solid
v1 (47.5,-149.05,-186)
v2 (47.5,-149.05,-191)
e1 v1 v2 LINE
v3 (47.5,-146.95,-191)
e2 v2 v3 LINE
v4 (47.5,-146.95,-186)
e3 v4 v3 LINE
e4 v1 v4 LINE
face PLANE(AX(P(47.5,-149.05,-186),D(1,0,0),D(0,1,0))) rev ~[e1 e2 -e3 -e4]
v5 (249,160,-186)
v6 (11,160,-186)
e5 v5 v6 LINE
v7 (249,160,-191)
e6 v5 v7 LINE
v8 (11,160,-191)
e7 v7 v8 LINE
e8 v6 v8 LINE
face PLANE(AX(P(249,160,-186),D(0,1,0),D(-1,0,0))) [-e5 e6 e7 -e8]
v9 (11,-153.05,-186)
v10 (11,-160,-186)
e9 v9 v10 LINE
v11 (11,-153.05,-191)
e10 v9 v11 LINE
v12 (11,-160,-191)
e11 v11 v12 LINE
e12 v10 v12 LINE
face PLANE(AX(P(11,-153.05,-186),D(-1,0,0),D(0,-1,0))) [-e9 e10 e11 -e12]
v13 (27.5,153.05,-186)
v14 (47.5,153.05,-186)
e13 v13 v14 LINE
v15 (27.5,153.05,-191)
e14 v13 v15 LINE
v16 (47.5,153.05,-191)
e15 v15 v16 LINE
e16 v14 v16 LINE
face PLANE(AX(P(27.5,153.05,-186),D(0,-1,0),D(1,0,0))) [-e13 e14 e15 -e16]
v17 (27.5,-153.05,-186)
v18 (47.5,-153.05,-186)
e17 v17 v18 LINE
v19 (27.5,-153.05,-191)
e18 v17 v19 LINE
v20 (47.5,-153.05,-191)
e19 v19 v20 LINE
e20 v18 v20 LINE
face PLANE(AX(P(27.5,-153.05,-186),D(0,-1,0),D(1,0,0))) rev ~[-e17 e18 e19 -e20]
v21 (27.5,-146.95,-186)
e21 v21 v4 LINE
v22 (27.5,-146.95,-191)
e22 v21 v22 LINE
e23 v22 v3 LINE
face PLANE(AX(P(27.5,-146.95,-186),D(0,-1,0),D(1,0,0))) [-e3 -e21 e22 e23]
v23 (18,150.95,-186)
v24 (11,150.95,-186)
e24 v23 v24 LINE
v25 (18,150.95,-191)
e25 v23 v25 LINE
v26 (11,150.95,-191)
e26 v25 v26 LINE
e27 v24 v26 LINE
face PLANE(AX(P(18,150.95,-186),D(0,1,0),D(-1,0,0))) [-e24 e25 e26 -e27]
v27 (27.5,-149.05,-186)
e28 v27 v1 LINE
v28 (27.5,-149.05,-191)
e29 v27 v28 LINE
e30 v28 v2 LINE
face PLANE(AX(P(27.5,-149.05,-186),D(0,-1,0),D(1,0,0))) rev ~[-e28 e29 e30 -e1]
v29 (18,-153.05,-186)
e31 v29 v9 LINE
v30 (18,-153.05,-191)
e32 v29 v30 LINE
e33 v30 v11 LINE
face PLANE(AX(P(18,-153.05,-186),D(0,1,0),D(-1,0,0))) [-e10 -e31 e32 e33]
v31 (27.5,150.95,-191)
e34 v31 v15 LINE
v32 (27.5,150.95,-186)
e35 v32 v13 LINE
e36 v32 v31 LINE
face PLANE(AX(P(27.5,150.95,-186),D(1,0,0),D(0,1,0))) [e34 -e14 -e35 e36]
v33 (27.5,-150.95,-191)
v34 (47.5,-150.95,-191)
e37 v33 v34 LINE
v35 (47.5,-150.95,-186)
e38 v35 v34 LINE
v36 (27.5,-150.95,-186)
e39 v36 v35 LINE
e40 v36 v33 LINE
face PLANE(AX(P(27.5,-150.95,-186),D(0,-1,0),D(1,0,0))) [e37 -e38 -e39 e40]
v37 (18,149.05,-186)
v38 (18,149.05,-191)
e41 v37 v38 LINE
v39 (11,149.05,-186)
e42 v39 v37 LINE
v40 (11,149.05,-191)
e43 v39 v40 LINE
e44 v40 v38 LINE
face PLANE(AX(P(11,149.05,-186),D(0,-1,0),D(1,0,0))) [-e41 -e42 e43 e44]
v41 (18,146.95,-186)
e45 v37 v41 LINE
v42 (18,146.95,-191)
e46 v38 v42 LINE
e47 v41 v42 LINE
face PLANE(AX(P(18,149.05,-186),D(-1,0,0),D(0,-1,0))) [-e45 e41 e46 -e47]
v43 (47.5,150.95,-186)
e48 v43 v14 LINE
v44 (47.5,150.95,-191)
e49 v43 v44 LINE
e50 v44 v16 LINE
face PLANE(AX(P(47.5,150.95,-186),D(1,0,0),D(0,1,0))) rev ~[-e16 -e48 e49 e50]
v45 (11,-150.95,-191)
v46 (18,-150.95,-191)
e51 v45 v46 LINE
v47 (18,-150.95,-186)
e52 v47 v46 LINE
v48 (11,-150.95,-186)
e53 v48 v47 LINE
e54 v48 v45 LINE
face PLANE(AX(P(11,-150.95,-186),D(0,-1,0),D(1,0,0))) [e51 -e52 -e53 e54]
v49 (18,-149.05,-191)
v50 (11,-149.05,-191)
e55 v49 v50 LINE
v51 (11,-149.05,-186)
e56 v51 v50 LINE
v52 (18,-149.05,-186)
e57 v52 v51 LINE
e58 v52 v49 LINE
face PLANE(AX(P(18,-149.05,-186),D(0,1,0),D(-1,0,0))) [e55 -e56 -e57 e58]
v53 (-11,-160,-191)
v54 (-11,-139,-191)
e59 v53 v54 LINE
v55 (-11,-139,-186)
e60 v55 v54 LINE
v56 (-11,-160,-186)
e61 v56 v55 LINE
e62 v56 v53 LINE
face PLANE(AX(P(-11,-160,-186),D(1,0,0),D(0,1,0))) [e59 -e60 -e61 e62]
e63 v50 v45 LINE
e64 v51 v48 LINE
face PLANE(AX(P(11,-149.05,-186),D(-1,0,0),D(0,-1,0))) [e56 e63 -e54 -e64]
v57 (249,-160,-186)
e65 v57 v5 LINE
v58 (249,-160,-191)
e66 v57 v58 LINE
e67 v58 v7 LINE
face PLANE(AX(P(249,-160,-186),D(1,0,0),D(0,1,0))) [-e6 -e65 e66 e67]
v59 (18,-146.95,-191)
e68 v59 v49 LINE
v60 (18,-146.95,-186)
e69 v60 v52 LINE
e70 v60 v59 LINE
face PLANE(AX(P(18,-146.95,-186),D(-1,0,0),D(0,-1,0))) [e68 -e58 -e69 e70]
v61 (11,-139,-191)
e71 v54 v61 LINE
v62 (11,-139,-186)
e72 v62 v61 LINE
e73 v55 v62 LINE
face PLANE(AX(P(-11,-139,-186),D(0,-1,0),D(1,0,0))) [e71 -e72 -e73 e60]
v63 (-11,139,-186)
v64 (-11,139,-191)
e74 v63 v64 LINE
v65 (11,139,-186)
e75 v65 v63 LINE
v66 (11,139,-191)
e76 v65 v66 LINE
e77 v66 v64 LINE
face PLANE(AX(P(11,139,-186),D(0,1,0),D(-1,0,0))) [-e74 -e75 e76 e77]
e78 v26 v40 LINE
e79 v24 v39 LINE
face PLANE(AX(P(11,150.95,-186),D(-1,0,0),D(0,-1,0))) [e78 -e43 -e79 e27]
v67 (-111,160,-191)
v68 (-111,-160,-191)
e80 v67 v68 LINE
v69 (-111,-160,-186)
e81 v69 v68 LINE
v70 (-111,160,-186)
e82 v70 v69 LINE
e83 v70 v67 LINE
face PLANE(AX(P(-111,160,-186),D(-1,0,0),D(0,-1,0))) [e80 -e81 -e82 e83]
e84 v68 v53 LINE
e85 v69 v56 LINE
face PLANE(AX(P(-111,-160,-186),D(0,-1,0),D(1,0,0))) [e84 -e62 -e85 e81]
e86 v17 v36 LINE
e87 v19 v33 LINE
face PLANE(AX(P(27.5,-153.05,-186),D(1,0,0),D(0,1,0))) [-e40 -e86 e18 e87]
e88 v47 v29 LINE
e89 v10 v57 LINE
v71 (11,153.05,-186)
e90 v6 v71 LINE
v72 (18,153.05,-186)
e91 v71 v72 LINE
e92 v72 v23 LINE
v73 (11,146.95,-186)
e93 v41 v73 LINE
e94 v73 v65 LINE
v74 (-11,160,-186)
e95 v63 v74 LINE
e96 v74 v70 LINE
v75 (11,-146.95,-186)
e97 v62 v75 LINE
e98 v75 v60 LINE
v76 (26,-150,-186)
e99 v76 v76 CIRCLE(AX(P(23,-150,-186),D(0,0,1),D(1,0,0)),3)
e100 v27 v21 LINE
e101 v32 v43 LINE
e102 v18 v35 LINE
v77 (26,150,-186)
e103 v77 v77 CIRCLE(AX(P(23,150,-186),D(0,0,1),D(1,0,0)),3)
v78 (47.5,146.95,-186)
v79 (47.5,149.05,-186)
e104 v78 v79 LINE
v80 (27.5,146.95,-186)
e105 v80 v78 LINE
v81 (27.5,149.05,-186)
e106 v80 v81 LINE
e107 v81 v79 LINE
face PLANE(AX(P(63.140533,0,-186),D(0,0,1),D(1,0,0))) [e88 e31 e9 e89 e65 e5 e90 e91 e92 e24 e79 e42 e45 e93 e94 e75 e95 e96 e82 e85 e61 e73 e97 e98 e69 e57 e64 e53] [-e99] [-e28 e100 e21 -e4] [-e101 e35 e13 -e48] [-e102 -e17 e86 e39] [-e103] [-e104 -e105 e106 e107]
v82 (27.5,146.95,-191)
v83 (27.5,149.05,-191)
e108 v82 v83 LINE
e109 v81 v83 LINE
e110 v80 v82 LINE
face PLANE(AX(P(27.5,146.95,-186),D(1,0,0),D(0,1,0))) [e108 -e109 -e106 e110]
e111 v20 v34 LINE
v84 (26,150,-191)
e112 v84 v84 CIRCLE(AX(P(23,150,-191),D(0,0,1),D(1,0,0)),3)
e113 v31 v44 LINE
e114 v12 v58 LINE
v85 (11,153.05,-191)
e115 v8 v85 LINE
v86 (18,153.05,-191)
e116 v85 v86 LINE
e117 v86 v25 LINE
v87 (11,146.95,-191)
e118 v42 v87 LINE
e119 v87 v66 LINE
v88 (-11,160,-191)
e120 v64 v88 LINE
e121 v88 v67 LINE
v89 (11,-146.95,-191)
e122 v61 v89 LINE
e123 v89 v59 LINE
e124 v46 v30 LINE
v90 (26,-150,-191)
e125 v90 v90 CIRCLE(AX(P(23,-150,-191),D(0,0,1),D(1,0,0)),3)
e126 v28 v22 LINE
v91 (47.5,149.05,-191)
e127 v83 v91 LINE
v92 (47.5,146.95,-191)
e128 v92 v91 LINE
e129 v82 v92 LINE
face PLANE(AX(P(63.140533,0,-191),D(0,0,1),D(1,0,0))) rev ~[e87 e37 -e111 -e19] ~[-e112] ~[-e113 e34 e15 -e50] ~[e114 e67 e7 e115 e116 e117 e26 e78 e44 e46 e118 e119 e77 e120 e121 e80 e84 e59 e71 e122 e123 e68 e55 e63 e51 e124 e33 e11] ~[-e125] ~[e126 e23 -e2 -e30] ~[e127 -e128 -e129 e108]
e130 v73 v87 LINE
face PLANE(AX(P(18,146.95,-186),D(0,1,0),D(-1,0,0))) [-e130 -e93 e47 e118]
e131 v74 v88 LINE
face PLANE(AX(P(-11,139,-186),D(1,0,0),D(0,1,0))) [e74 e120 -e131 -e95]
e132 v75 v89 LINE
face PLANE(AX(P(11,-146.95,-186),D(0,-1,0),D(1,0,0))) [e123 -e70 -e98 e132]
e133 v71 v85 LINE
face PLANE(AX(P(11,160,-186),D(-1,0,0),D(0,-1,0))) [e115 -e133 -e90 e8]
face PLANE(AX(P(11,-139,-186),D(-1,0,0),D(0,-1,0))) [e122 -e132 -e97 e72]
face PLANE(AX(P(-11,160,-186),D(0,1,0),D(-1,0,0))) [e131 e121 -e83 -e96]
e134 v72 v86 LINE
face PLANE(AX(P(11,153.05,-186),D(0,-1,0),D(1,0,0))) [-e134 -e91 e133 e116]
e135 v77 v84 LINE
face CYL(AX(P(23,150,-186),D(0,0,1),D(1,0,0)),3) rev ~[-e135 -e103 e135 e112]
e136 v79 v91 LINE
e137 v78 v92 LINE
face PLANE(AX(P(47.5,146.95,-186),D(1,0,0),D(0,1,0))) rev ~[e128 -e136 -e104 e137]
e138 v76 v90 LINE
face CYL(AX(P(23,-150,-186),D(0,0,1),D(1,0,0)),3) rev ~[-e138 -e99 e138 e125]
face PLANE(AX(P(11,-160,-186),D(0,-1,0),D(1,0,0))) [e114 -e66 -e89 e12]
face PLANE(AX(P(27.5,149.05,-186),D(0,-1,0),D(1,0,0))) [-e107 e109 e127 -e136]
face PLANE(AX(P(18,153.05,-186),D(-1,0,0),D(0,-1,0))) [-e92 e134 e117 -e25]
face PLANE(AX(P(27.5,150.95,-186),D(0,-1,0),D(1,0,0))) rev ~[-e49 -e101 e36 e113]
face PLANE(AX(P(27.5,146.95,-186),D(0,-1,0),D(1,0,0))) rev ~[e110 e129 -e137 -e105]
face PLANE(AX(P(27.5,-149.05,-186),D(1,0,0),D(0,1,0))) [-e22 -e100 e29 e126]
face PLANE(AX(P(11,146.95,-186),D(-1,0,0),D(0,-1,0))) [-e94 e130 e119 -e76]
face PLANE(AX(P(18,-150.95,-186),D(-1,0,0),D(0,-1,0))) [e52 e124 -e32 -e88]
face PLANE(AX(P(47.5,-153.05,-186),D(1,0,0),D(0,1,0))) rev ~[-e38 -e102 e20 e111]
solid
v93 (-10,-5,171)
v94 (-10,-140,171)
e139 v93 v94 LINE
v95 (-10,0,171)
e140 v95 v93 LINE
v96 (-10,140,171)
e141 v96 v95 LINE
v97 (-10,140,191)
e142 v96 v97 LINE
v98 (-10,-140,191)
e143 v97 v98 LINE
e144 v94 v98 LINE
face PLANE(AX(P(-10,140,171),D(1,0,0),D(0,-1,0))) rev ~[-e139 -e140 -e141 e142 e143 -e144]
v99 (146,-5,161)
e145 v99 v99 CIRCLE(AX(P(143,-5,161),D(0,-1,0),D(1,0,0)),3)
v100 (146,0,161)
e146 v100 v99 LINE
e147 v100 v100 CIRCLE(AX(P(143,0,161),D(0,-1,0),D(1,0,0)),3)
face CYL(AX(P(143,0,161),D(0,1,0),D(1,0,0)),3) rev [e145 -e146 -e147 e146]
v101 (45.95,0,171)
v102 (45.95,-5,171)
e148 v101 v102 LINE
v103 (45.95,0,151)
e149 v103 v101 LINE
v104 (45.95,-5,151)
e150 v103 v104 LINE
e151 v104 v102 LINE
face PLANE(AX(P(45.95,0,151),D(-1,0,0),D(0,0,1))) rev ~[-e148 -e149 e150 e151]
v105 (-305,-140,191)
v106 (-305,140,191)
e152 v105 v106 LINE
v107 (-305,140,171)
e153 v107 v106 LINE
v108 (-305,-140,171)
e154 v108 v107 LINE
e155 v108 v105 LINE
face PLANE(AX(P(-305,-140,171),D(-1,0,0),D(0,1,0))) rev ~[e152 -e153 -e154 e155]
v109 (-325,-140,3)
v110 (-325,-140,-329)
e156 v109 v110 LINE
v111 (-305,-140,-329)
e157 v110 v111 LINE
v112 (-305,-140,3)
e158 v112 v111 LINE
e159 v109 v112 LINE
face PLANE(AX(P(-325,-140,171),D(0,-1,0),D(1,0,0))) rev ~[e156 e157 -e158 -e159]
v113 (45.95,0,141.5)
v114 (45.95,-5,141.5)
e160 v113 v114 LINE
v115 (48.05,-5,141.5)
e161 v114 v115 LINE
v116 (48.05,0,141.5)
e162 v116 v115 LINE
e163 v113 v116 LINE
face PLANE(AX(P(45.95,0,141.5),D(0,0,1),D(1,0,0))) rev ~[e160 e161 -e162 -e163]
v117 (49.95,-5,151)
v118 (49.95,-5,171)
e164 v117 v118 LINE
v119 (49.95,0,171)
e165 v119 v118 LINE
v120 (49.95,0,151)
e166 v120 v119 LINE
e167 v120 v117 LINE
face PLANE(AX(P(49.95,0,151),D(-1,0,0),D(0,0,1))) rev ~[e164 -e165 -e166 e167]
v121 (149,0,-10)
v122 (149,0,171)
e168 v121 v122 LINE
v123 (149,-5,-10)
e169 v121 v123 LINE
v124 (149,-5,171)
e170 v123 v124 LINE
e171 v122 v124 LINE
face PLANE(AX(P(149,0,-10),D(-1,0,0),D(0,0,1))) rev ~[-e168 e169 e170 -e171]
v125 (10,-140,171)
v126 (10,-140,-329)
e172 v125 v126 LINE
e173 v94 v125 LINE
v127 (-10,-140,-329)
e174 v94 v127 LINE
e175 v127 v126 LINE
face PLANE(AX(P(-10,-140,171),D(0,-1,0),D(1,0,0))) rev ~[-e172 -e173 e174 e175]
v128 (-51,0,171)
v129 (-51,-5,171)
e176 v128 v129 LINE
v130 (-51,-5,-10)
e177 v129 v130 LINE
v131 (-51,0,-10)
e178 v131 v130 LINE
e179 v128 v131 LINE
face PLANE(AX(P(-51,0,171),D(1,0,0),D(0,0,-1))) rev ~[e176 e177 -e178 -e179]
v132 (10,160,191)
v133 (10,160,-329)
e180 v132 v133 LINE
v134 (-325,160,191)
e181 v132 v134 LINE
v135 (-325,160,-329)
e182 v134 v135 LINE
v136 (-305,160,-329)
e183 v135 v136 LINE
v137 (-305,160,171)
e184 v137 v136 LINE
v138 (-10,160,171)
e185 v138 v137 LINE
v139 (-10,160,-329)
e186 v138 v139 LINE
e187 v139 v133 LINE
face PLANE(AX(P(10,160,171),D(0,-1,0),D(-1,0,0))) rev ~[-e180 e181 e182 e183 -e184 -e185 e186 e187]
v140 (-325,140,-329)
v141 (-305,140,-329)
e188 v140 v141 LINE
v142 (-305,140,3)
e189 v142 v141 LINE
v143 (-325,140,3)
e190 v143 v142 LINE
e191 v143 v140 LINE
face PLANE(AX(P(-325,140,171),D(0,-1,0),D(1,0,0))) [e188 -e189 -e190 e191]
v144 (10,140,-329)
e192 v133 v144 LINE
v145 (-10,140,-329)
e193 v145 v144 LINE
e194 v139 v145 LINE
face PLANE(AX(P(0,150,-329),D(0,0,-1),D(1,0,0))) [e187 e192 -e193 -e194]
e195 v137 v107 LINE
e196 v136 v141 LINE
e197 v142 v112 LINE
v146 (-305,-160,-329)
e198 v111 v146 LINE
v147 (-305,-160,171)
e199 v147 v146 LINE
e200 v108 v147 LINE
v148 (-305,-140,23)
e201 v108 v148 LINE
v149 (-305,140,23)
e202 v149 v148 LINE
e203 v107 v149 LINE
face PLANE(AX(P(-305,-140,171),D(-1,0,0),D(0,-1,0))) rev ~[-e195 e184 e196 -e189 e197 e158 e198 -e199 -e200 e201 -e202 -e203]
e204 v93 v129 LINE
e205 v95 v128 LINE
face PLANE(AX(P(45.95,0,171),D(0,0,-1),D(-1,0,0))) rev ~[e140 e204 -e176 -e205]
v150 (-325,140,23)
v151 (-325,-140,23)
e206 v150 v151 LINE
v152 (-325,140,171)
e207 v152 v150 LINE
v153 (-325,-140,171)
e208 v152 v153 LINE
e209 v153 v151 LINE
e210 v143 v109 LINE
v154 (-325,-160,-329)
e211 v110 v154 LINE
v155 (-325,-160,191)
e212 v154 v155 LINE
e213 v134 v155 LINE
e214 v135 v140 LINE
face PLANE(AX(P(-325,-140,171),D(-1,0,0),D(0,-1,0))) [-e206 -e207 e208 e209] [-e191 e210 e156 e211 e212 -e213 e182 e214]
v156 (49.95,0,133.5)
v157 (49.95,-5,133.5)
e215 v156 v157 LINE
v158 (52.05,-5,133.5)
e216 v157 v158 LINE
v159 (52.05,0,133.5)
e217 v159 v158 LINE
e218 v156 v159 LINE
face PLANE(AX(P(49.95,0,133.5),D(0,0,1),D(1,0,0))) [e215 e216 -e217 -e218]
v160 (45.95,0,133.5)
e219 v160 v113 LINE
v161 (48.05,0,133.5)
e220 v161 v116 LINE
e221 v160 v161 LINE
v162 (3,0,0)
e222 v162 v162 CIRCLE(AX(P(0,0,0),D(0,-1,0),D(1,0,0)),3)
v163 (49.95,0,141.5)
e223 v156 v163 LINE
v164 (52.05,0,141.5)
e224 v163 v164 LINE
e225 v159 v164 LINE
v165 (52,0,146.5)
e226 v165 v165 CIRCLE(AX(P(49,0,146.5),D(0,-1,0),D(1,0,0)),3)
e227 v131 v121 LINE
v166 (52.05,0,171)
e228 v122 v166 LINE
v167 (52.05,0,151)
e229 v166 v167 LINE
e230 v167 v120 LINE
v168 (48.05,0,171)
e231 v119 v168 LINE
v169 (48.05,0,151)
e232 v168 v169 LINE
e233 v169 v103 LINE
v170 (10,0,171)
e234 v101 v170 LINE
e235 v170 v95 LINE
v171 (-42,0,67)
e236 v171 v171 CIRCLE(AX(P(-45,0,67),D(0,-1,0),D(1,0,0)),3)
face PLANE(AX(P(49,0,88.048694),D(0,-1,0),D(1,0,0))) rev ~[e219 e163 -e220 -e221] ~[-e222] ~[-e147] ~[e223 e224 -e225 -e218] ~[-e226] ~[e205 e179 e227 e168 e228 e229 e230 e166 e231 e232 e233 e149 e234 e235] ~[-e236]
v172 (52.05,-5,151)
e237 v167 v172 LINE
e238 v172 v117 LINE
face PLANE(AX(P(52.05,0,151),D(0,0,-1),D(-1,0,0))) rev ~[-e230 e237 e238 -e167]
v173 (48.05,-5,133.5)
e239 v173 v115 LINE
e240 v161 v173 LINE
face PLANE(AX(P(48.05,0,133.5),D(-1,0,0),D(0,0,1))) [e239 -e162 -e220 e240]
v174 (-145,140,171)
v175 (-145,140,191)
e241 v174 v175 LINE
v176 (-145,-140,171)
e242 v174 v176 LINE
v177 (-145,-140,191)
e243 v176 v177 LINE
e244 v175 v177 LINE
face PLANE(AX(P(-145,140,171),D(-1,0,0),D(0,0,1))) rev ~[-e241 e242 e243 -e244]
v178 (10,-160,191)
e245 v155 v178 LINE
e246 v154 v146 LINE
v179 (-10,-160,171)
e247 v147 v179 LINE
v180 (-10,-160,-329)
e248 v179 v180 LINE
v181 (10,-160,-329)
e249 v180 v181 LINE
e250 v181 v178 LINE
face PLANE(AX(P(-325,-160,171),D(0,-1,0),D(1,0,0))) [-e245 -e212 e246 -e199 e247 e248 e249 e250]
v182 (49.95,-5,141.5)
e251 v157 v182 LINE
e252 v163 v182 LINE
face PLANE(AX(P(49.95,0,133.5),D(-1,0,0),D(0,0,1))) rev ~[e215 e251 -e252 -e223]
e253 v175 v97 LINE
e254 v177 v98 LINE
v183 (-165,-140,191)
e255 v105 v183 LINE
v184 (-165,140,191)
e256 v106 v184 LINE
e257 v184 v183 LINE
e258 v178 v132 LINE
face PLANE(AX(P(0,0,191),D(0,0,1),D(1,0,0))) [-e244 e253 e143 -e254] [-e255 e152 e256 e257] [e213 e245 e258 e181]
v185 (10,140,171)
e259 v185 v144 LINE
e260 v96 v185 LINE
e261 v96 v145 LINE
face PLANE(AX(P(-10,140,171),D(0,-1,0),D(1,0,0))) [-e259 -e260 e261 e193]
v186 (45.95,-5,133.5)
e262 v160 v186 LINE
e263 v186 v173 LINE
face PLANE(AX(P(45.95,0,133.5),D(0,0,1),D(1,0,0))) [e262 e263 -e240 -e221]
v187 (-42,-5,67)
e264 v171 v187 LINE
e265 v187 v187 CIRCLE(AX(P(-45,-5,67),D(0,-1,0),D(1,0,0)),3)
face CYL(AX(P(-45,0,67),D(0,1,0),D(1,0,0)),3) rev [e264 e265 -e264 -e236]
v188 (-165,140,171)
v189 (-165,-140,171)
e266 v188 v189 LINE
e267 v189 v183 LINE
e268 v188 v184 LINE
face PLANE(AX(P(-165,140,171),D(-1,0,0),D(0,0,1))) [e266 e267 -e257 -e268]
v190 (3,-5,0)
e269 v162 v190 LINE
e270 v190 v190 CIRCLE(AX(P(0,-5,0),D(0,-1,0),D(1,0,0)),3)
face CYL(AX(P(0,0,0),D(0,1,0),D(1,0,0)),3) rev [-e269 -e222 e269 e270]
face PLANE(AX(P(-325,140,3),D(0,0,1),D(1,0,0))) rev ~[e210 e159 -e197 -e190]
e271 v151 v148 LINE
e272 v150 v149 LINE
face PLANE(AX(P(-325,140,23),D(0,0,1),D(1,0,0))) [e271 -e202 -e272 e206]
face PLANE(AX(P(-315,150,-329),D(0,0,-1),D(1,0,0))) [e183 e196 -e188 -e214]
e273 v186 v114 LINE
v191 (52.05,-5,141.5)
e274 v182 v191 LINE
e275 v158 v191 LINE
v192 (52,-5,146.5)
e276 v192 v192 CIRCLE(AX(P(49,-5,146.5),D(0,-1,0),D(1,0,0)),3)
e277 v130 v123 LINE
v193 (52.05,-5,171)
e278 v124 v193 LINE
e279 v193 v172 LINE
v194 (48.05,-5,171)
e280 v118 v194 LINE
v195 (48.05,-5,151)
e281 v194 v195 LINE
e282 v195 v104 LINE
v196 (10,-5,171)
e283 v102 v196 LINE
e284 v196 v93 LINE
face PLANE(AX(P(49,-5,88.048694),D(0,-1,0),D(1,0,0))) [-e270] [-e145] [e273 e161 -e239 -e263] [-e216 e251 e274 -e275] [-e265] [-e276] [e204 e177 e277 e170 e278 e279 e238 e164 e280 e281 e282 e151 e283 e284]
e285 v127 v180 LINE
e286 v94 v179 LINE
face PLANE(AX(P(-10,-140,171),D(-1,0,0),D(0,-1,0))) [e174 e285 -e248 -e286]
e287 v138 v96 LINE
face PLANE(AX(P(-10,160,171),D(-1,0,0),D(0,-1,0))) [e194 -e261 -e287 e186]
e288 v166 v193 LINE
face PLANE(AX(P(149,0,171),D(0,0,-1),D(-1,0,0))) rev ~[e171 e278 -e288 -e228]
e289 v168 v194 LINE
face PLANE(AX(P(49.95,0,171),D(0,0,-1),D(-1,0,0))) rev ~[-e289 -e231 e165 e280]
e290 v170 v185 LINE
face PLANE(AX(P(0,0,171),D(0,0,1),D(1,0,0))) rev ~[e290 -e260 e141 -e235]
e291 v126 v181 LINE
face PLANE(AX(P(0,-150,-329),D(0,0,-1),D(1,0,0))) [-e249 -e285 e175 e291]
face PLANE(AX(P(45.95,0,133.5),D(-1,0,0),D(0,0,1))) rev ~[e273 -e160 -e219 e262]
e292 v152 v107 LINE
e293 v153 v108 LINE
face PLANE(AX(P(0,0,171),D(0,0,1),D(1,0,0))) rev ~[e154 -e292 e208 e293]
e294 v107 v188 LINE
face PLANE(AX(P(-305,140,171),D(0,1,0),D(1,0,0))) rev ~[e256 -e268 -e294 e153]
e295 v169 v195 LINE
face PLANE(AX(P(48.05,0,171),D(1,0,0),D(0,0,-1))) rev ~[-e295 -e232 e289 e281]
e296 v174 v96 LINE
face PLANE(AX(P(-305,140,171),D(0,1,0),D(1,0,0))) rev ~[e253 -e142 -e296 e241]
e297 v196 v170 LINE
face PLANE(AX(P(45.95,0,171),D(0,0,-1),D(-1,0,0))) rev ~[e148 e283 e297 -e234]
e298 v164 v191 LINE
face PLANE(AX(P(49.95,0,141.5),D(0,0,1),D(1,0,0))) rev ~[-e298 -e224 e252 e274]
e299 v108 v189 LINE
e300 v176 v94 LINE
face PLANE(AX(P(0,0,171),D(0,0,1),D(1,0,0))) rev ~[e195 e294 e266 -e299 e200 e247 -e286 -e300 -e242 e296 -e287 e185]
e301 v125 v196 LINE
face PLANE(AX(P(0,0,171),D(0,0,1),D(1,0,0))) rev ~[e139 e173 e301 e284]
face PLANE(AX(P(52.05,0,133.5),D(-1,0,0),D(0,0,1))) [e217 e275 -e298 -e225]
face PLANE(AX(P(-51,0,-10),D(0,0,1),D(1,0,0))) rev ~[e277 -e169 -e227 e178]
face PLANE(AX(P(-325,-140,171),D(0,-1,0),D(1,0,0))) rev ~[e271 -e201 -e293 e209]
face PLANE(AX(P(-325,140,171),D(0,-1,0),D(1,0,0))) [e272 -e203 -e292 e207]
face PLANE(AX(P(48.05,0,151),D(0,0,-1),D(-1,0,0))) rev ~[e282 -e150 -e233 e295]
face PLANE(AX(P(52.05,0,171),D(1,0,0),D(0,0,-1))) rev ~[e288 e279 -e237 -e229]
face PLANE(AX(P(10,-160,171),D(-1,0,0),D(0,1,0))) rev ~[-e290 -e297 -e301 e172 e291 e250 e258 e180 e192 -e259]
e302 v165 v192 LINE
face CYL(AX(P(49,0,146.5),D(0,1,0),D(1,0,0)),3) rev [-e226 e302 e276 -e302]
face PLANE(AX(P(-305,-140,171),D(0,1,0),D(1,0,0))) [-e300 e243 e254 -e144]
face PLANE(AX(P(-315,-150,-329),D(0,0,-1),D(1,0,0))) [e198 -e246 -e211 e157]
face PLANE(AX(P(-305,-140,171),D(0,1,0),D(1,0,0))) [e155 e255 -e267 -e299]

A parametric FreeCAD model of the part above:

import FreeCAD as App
import Part
import Sketcher
from FreeCAD import Vector

doc = App.newDocument("Part")
body = doc.addObject("PartDesign::Body", "Body")

# Sketch on XZ plane
sketch1 = doc.addObject("Sketcher::SketchObject", "Sketch")
body.addObject(sketch1)
sketch1.AttachmentSupport = (doc.XZ_Plane, [""])
sketch1.MapMode = "FlatFace"
sketch1.addGeometry([
    Part.LineSegment(Vector(-51, 171, 0), Vector(-51, -10, 0)),  # 0
    Part.LineSegment(Vector(-51, -10, 0), Vector(149, -10, 0)),  # 1
    Part.LineSegment(Vector(149, -10, 0), Vector(149, 171, 0)),  # 2
    Part.LineSegment(Vector(149, 171, 0), Vector(52, 171, 0)),  # 3
    Part.LineSegment(Vector(52, 171, 0), Vector(52, 151, 0)),  # 4
    Part.LineSegment(Vector(52, 151, 0), Vector(50, 151, 0)),  # 5
    Part.LineSegment(Vector(50, 151, 0), Vector(50, 171, 0)),  # 6
    Part.LineSegment(Vector(50, 171, 0), Vector(48, 171, 0)),  # 7
    Part.LineSegment(Vector(48, 171, 0), Vector(48, 151, 0)),  # 8
    Part.LineSegment(Vector(48, 151, 0), Vector(46, 151, 0)),  # 9
    Part.LineSegment(Vector(46, 151, 0), Vector(46, 171, 0)),  # 10
    Part.LineSegment(Vector(46, 171, 0), Vector(-51, 171, 0)),  # 11
    Part.Circle(Vector(0, 0, 0), Vector(0, 0, 1), 3),  # 12
    Part.Circle(Vector(-45, 67, 0), Vector(0, 0, 1), 3),  # 13
    Part.LineSegment(Vector(48, 133.5, 0), Vector(46, 133.5, 0)),  # 14
    Part.LineSegment(Vector(46, 133.5, 0), Vector(46, 141.5, 0)),  # 15
    Part.LineSegment(Vector(46, 141.5, 0), Vector(48, 141.5, 0)),  # 16
    Part.LineSegment(Vector(48, 141.5, 0), Vector(48, 133.5, 0)),  # 17
    Part.LineSegment(Vector(52, 133.5, 0), Vector(50, 133.5, 0)),  # 18
    Part.LineSegment(Vector(50, 133.5, 0), Vector(50, 141.5, 0)),  # 19
    Part.LineSegment(Vector(50, 141.5, 0), Vector(52, 141.5, 0)),  # 20
    Part.LineSegment(Vector(52, 141.5, 0), Vector(52, 133.5, 0)),  # 21
    Part.Circle(Vector(49, 146.5, 0), Vector(0, 0, 1), 3),  # 22
    Part.Circle(Vector(143, 161, 0), Vector(0, 0, 1), 3),  # 23
], False)
sketch1.addConstraint([
    Sketcher.Constraint("Coincident", 0, 2, 1, 1),
    Sketcher.Constraint("Coincident", 1, 2, 2, 1),
    Sketcher.Constraint("Coincident", 2, 2, 3, 1),
    Sketcher.Constraint("Coincident", 3, 2, 4, 1),
    Sketcher.Constraint("Coincident", 4, 2, 5, 1),
    Sketcher.Constraint("Coincident", 5, 2, 6, 1),
    Sketcher.Constraint("Coincident", 6, 2, 7, 1),
    Sketcher.Constraint("Coincident", 7, 2, 8, 1),
    Sketcher.Constraint("Coincident", 8, 2, 9, 1),
    Sketcher.Constraint("Coincident", 9, 2, 10, 1),
    Sketcher.Constraint("Coincident", 10, 2, 11, 1),
    Sketcher.Constraint("Coincident", 11, 2, 0, 1),
    Sketcher.Constraint("Coincident", 14, 2, 15, 1),
    Sketcher.Constraint("Coincident", 15, 2, 16, 1),
    Sketcher.Constraint("Coincident", 16, 2, 17, 1),
    Sketcher.Constraint("Coincident", 17, 2, 14, 1),
    Sketcher.Constraint("Coincident", 18, 2, 19, 1),
    Sketcher.Constraint("Coincident", 19, 2, 20, 1),
    Sketcher.Constraint("Coincident", 20, 2, 21, 1),
    Sketcher.Constraint("Coincident", 21, 2, 18, 1),
    Sketcher.Constraint("Vertical", 0),
    Sketcher.Constraint("Horizontal", 1),
    Sketcher.Constraint("Vertical", 2),
    Sketcher.Constraint("Horizontal", 3),
    Sketcher.Constraint("Vertical", 4),
    Sketcher.Constraint("Horizontal", 5),
    Sketcher.Constraint("Vertical", 6),
    Sketcher.Constraint("Horizontal", 7),
    Sketcher.Constraint("Vertical", 8),
    Sketcher.Constraint("Horizontal", 9),
    Sketcher.Constraint("Vertical", 10),
    Sketcher.Constraint("Horizontal", 11),
    Sketcher.Constraint("Horizontal", 14),
    Sketcher.Constraint("Vertical", 15),
    Sketcher.Constraint("Horizontal", 16),
    Sketcher.Constraint("Vertical", 17),
    Sketcher.Constraint("Horizontal", 18),
    Sketcher.Constraint("Vertical", 19),
    Sketcher.Constraint("Horizontal", 20),
    Sketcher.Constraint("Vertical", 21),
    Sketcher.Constraint("Coincident", 12, 3, -1, 1),
    Sketcher.Constraint("Equal", 12, 13),
    Sketcher.Constraint("Equal", 13, 22),
    Sketcher.Constraint("Equal", 22, 23),
    Sketcher.Constraint("Horizontal", 3, 2, 6, 2),
    Sketcher.Constraint("Horizontal", 5, 2, 8, 2),
    Sketcher.Constraint("Horizontal", 7, 2, 10, 2),
    Sketcher.Constraint("Horizontal", 17, 2, 18, 2),
    Sketcher.Constraint("Horizontal", 16, 2, 19, 2),
    Sketcher.Constraint("Vertical", 10, 2, 14, 2),
    Sketcher.Constraint("Vertical", 8, 2, 16, 2),
    Sketcher.Constraint("Vertical", 6, 2, 18, 2),
    Sketcher.Constraint("Vertical", 4, 2, 20, 2),
    Sketcher.Constraint("Equal", 5, 9),
    Sketcher.Constraint("Equal", 3, 11),
    Sketcher.Constraint("Diameter", 12, 6.0),
    Sketcher.Constraint("DistanceX", 1, 1, 1, 2, 200.0),
    Sketcher.Constraint("DistanceY", 0, 2, 0, 1, 181.0),
    Sketcher.Constraint("DistanceY", 4, 2, 4, 1, 20.0),
    Sketcher.Constraint("DistanceY", 15, 1, 15, 2, 8.0),
    Sketcher.Constraint("DistanceX", 5, 2, 5, 1, 2.1),
    Sketcher.Constraint("DistanceX", 7, 2, 7, 1, 1.9),
    Sketcher.Constraint("DistanceX", 13, 3, -1, 1, 45.0),
    Sketcher.Constraint("DistanceY", -1, 1, 13, 3, 67.0),
    Sketcher.Constraint("DistanceX", -1, 1, 22, 3, 49.0),
    Sketcher.Constraint("DistanceX", -1, 1, 23, 3, 143.0),
    Sketcher.Constraint("DistanceY", -1, 1, 23, 3, 161.0),
    Sketcher.Constraint("DistanceX", 0, 2, -1, 1, 51.0),
    Sketcher.Constraint("DistanceY", 0, 2, -1, 1, 10.0),
    Sketcher.Constraint("DistanceY", 14, 2, 22, 3, 13.0),
    Sketcher.Constraint("DistanceY", -1, 1, 22, 3, 146.5),
])
pad1 = doc.addObject("PartDesign::Pad", "Pad")
body.addObject(pad1)
pad1.Profile = sketch1
pad1.Length = 5

# Sketch on XY plane
sketch2 = doc.addObject("Sketcher::SketchObject", "Sketch001")
body.addObject(sketch2)
sketch2.AttachmentSupport = (doc.XY_Plane, [""])
sketch2.MapMode = "FlatFace"
sketch2.AttachmentOffset = App.Placement(Vector(0, 0, 171), App.Rotation())
sketch2.addGeometry([
    Part.LineSegment(Vector(10, -160, 0), Vector(10, 160, 0)),  # 0
    Part.LineSegment(Vector(10, 160, 0), Vector(-325, 160, 0)),  # 1
    Part.LineSegment(Vector(-325, 160, 0), Vector(-325, -160, 0)),  # 2
    Part.LineSegment(Vector(-325, -160, 0), Vector(10, -160, 0)),  # 3
    Part.LineSegment(Vector(-10, 140, 0), Vector(-10, -140, 0)),  # 4
    Part.LineSegment(Vector(-10, -140, 0), Vector(-305, -140, 0)),  # 5
    Part.LineSegment(Vector(-305, -140, 0), Vector(-305, 140, 0)),  # 6
    Part.LineSegment(Vector(-305, 140, 0), Vector(-10, 140, 0)),  # 7
], False)
sketch2.addConstraint([
    Sketcher.Constraint("Coincident", 0, 2, 1, 1),
    Sketcher.Constraint("Coincident", 1, 2, 2, 1),
    Sketcher.Constraint("Coincident", 2, 2, 3, 1),
    Sketcher.Constraint("Coincident", 3, 2, 0, 1),
    Sketcher.Constraint("Coincident", 4, 2, 5, 1),
    Sketcher.Constraint("Coincident", 5, 2, 6, 1),
    Sketcher.Constraint("Coincident", 6, 2, 7, 1),
    Sketcher.Constraint("Coincident", 7, 2, 4, 1),
    Sketcher.Constraint("Vertical", 0),
    Sketcher.Constraint("Horizontal", 1),
    Sketcher.Constraint("Vertical", 2),
    Sketcher.Constraint("Horizontal", 3),
    Sketcher.Constraint("Vertical", 4),
    Sketcher.Constraint("Horizontal", 5),
    Sketcher.Constraint("Vertical", 6),
    Sketcher.Constraint("Horizontal", 7),
    Sketcher.Constraint("DistanceX", 1, 2, 1, 1, 335.0),
    Sketcher.Constraint("DistanceX", 5, 2, 5, 1, 295.0),
    Sketcher.Constraint("DistanceY", 0, 1, 0, 2, 320.0),
    Sketcher.Constraint("DistanceY", 4, 2, 4, 1, 280.0),
    Sketcher.Constraint("DistanceX", -1, 1, 0, 2, 10.0),
    Sketcher.Constraint("DistanceY", -1, 1, 0, 2, 160.0),
    Sketcher.Constraint("DistanceX", 4, 2, -1, 1, 10.0),
    Sketcher.Constraint("DistanceY", 4, 2, -1, 1, 140.0),
])
pad2 = doc.addObject("PartDesign::Pad", "Pad001")
body.addObject(pad2)
pad2.Profile = sketch2
pad2.Length = 20

# Sketch on XY plane
sketch3 = doc.addObject("Sketcher::SketchObject", "Sketch002")
body.addObject(sketch3)
sketch3.AttachmentSupport = (doc.XY_Plane, [""])
sketch3.MapMode = "FlatFace"
sketch3.AttachmentOffset = App.Placement(Vector(0, 0, 171), App.Rotation())
sketch3.addGeometry([
    Part.LineSegment(Vector(-325, -160, 0), Vector(-325, -140, 0)),  # 0
    Part.LineSegment(Vector(-325, -140, 0), Vector(-305, -140, 0)),  # 1
    Part.LineSegment(Vector(-305, -140, 0), Vector(-305, -160, 0)),  # 2
    Part.LineSegment(Vector(-305, -160, 0), Vector(-325, -160, 0)),  # 3
    Part.LineSegment(Vector(-325, 140, 0), Vector(-325, 160, 0)),  # 4
    Part.LineSegment(Vector(-325, 160, 0), Vector(-305, 160, 0)),  # 5
    Part.LineSegment(Vector(-305, 160, 0), Vector(-305, 140, 0)),  # 6
    Part.LineSegment(Vector(-305, 140, 0), Vector(-325, 140, 0)),  # 7
    Part.LineSegment(Vector(-10, 140, 0), Vector(-10, 160, 0)),  # 8
    Part.LineSegment(Vector(-10, 160, 0), Vector(10, 160, 0)),  # 9
    Part.LineSegment(Vector(10, 160, 0), Vector(10, 140, 0)),  # 10
    Part.LineSegment(Vector(10, 140, 0), Vector(-10, 140, 0)),  # 11
    Part.LineSegment(Vector(-10, -160, 0), Vector(-10, -140, 0)),  # 12
    Part.LineSegment(Vector(-10, -140, 0), Vector(10, -140, 0)),  # 13
    Part.LineSegment(Vector(10, -140, 0), Vector(10, -160, 0)),  # 14
    Part.LineSegment(Vector(10, -160, 0), Vector(-10, -160, 0)),  # 15
], False)
sketch3.addConstraint([
    Sketcher.Constraint("Coincident", 0, 2, 1, 1),
    Sketcher.Constraint("Coincident", 1, 2, 2, 1),
    Sketcher.Constraint("Coincident", 2, 2, 3, 1),
    Sketcher.Constraint("Coincident", 3, 2, 0, 1),
    Sketcher.Constraint("Coincident", 4, 2, 5, 1),
    Sketcher.Constraint("Coincident", 5, 2, 6, 1),
    Sketcher.Constraint("Coincident", 6, 2, 7, 1),
    Sketcher.Constraint("Coincident", 7, 2, 4, 1),
    Sketcher.Constraint("Coincident", 8, 2, 9, 1),
    Sketcher.Constraint("Coincident", 9, 2, 10, 1),
    Sketcher.Constraint("Coincident", 10, 2, 11, 1),
    Sketcher.Constraint("Coincident", 11, 2, 8, 1),
    Sketcher.Constraint("Coincident", 12, 2, 13, 1),
    Sketcher.Constraint("Coincident", 13, 2, 14, 1),
    Sketcher.Constraint("Coincident", 14, 2, 15, 1),
    Sketcher.Constraint("Coincident", 15, 2, 12, 1),
    Sketcher.Constraint("Vertical", 0),
    Sketcher.Constraint("Horizontal", 1),
    Sketcher.Constraint("Vertical", 2),
    Sketcher.Constraint("Horizontal", 3),
    Sketcher.Constraint("Vertical", 4),
    Sketcher.Constraint("Horizontal", 5),
    Sketcher.Constraint("Vertical", 6),
    Sketcher.Constraint("Horizontal", 7),
    Sketcher.Constraint("Vertical", 8),
    Sketcher.Constraint("Horizontal", 9),
    Sketcher.Constraint("Vertical", 10),
    Sketcher.Constraint("Horizontal", 11),
    Sketcher.Constraint("Vertical", 12),
    Sketcher.Constraint("Horizontal", 13),
    Sketcher.Constraint("Vertical", 14),
    Sketcher.Constraint("Horizontal", 15),
    Sketcher.Constraint("Symmetric", 10, 2, 12, 2, -1, 1),
    Sketcher.Constraint("Symmetric", 8, 2, 14, 2, -1, 1),
    Sketcher.Constraint("Symmetric", 3, 2, 4, 2, -1),
    Sketcher.Constraint("Symmetric", 1, 2, 6, 2, -1),
    Sketcher.Constraint("Horizontal", 5, 2, 8, 2),
    Sketcher.Constraint("Horizontal", 7, 2, 10, 2),
    Sketcher.Constraint("Vertical", 11, 2, 12, 2),
    Sketcher.Constraint("Equal", 7, 9),
    Sketcher.Constraint("Equal", 15, 0),
    Sketcher.Constraint("DistanceX", 1, 1, 1, 2, 20.0),
    Sketcher.Constraint("DistanceX", 0, 2, -1, 1, 325.0),
    Sketcher.Constraint("DistanceY", 0, 2, -1, 1, 140.0),
])
pad3 = doc.addObject("PartDesign::Pad", "Pad002")
body.addObject(pad3)
pad3.Profile = sketch3
pad3.Length = 500
pad3.Reversed = True

# Sketch on XZ plane
sketch4 = doc.addObject("Sketcher::SketchObject", "Sketch003")
body.addObject(sketch4)
sketch4.AttachmentSupport = (doc.XZ_Plane, [""])
sketch4.MapMode = "FlatFace"
sketch4.AttachmentOffset = App.Placement(Vector(0, 0, -140), App.Rotation())
sketch4.addGeometry([
    Part.LineSegment(Vector(-325, 23, 0), Vector(-325, 3, 0)),
    Part.LineSegment(Vector(-325, 3, 0), Vector(-305, 3, 0)),
    Part.LineSegment(Vector(-305, 3, 0), Vector(-305, 23, 0)),
    Part.LineSegment(Vector(-305, 23, 0), Vector(-325, 23, 0)),
], False)
sketch4.addConstraint([
    Sketcher.Constraint("Coincident", 0, 2, 1, 1),
    Sketcher.Constraint("Coincident", 1, 2, 2, 1),
    Sketcher.Constraint("Coincident", 2, 2, 3, 1),
    Sketcher.Constraint("Coincident", 3, 2, 0, 1),
    Sketcher.Constraint("Vertical", 0),
    Sketcher.Constraint("Horizontal", 1),
    Sketcher.Constraint("Vertical", 2),
    Sketcher.Constraint("Horizontal", 3),
    Sketcher.Constraint("Equal", 3, 0),
    Sketcher.Constraint("DistanceX", 1, 1, 1, 2, 20.0),
    Sketcher.Constraint("DistanceX", 0, 2, -1, 1, 325.0),
    Sketcher.Constraint("DistanceY", -1, 1, 0, 2, 3.0),
])
pad4 = doc.addObject("PartDesign::Pad", "Pad003")
body.addObject(pad4)
pad4.Profile = sketch4
pad4.Length = 280

# Sketch on XZ plane
sketch5 = doc.addObject("Sketcher::SketchObject", "Sketch004")
body.addObject(sketch5)
sketch5.AttachmentSupport = (doc.XZ_Plane, [""])
sketch5.MapMode = "FlatFace"
sketch5.AttachmentOffset = App.Placement(Vector(0, 0, -140), App.Rotation())
sketch5.addGeometry([
    Part.LineSegment(Vector(-165, 191, 0), Vector(-165, 171, 0)),
    Part.LineSegment(Vector(-165, 171, 0), Vector(-145, 171, 0)),
    Part.LineSegment(Vector(-145, 171, 0), Vector(-145, 191, 0)),
    Part.LineSegment(Vector(-145, 191, 0), Vector(-165, 191, 0)),
], False)
sketch5.addConstraint([
    Sketcher.Constraint("Coincident", 0, 2, 1, 1),
    Sketcher.Constraint("Coincident", 1, 2, 2, 1),
    Sketcher.Constraint("Coincident", 2, 2, 3, 1),
    Sketcher.Constraint("Coincident", 3, 2, 0, 1),
    Sketcher.Constraint("Vertical", 0),
    Sketcher.Constraint("Horizontal", 1),
    Sketcher.Constraint("Vertical", 2),
    Sketcher.Constraint("Horizontal", 3),
    Sketcher.Constraint("Equal", 3, 0),
    Sketcher.Constraint("DistanceX", 1, 1, 1, 2, 20.0),
    Sketcher.Constraint("DistanceX", 0, 2, -1, 1, 165.0),
    Sketcher.Constraint("DistanceY", -1, 1, 0, 2, 171.0),
])
pad5 = doc.addObject("PartDesign::Pad", "Pad004")
body.addObject(pad5)
pad5.Profile = sketch5
pad5.Length = 280
body2 = doc.addObject("PartDesign::Body", "Body001")

# Sketch on XY plane
sketch6 = doc.addObject("Sketcher::SketchObject", "Sketch005")
body2.addObject(sketch6)
sketch6.AttachmentSupport = (doc.getObject("XY_Plane001"), [""])
sketch6.MapMode = "FlatFace"
sketch6.AttachmentOffset = App.Placement(Vector(0, 0, -186), App.Rotation())
sketch6.addGeometry([
    Part.LineSegment(Vector(-11, -139, 0), Vector(11, -139, 0)),  # 0
    Part.LineSegment(Vector(11, -139, 0), Vector(11, -146.9, 0)),  # 1
    Part.LineSegment(Vector(11, -146.9, 0), Vector(18, -146.9, 0)),  # 2
    Part.LineSegment(Vector(18, -146.9, 0), Vector(18, -149.1, 0)),  # 3
    Part.LineSegment(Vector(18, -149.1, 0), Vector(11, -149.1, 0)),  # 4
    Part.LineSegment(Vector(11, -149.1, 0), Vector(11, -150.9, 0)),  # 5
    Part.LineSegment(Vector(11, -150.9, 0), Vector(18, -150.9, 0)),  # 6
    Part.LineSegment(Vector(18, -150.9, 0), Vector(18, -153.1, 0)),  # 7
    Part.LineSegment(Vector(18, -153.1, 0), Vector(11, -153.1, 0)),  # 8
    Part.LineSegment(Vector(11, -153.1, 0), Vector(11, -160, 0)),  # 9
    Part.LineSegment(Vector(11, -160, 0), Vector(249, -160, 0)),  # 10
    Part.LineSegment(Vector(249, -160, 0), Vector(249, 160, 0)),  # 11
    Part.LineSegment(Vector(249, 160, 0), Vector(11, 160, 0)),  # 12
    Part.LineSegment(Vector(11, 160, 0), Vector(11, 153.1, 0)),  # 13
    Part.LineSegment(Vector(11, 153.1, 0), Vector(18, 153.1, 0)),  # 14
    Part.LineSegment(Vector(18, 153.1, 0), Vector(18, 150.9, 0)),  # 15
    Part.LineSegment(Vector(18, 150.9, 0), Vector(11, 150.9, 0)),  # 16
    Part.LineSegment(Vector(11, 150.9, 0), Vector(11, 149.1, 0)),  # 17
    Part.LineSegment(Vector(11, 149.1, 0), Vector(18, 149.1, 0)),  # 18
    Part.LineSegment(Vector(18, 149.1, 0), Vector(18, 146.9, 0)),  # 19
    Part.LineSegment(Vector(18, 146.9, 0), Vector(11, 146.9, 0)),  # 20
    Part.LineSegment(Vector(11, 146.9, 0), Vector(11, 139, 0)),  # 21
    Part.LineSegment(Vector(11, 139, 0), Vector(-11, 139, 0)),  # 22
    Part.LineSegment(Vector(-11, 139, 0), Vector(-11, 160, 0)),  # 23
    Part.LineSegment(Vector(-11, 160, 0), Vector(-111, 160, 0)),  # 24
    Part.LineSegment(Vector(-111, 160, 0), Vector(-111, -160, 0)),  # 25
    Part.LineSegment(Vector(-111, -160, 0), Vector(-11, -160, 0)),  # 26
    Part.LineSegment(Vector(-11, -160, 0), Vector(-11, -139, 0)),  # 27
    Part.Circle(Vector(23, -150, 0), Vector(0, 0, 1), 3),  # 28
    Part.LineSegment(Vector(47.5, -153.1, 0), Vector(27.5, -153.1, 0)),  # 29
    Part.LineSegment(Vector(27.5, -153.1, 0), Vector(27.5, -150.9, 0)),  # 30
    Part.LineSegment(Vector(27.5, -150.9, 0), Vector(47.5, -150.9, 0)),  # 31
    Part.LineSegment(Vector(47.5, -150.9, 0), Vector(47.5, -153.1, 0)),  # 32
    Part.LineSegment(Vector(47.5, -149.1, 0), Vector(27.5, -149.1, 0)),  # 33
    Part.LineSegment(Vector(27.5, -149.1, 0), Vector(27.5, -146.9, 0)),  # 34
    Part.LineSegment(Vector(27.5, -146.9, 0), Vector(47.5, -146.9, 0)),  # 35
    Part.LineSegment(Vector(47.5, -146.9, 0), Vector(47.5, -149.1, 0)),  # 36
    Part.Circle(Vector(23, 150, 0), Vector(0, 0, 1), 3),  # 37
    Part.LineSegment(Vector(47.5, 146.9, 0), Vector(27.5, 146.9, 0)),  # 38
    Part.LineSegment(Vector(27.5, 146.9, 0), Vector(27.5, 149.1, 0)),  # 39
    Part.LineSegment(Vector(27.5, 149.1, 0), Vector(47.5, 149.1, 0)),  # 40
    Part.LineSegment(Vector(47.5, 149.1, 0), Vector(47.5, 146.9, 0)),  # 41
    Part.LineSegment(Vector(47.5, 150.9, 0), Vector(27.5, 150.9, 0)),  # 42
    Part.LineSegment(Vector(27.5, 150.9, 0), Vector(27.5, 153.1, 0)),  # 43
    Part.LineSegment(Vector(27.5, 153.1, 0), Vector(47.5, 153.1, 0)),  # 44
    Part.LineSegment(Vector(47.5, 153.1, 0), Vector(47.5, 150.9, 0)),  # 45
], False)
sketch6.addConstraint([
    Sketcher.Constraint("Coincident", 0, 2, 1, 1),
    Sketcher.Constraint("Coincident", 1, 2, 2, 1),
    Sketcher.Constraint("Coincident", 2, 2, 3, 1),
    Sketcher.Constraint("Coincident", 3, 2, 4, 1),
    Sketcher.Constraint("Coincident", 4, 2, 5, 1),
    Sketcher.Constraint("Coincident", 5, 2, 6, 1),
    Sketcher.Constraint("Coincident", 6, 2, 7, 1),
    Sketcher.Constraint("Coincident", 7, 2, 8, 1),
    Sketcher.Constraint("Coincident", 8, 2, 9, 1),
    Sketcher.Constraint("Coincident", 9, 2, 10, 1),
    Sketcher.Constraint("Coincident", 10, 2, 11, 1),
    Sketcher.Constraint("Coincident", 11, 2, 12, 1),
    Sketcher.Constraint("Coincident", 12, 2, 13, 1),
    Sketcher.Constraint("Coincident", 13, 2, 14, 1),
    Sketcher.Constraint("Coincident", 14, 2, 15, 1),
    Sketcher.Constraint("Coincident", 15, 2, 16, 1),
    Sketcher.Constraint("Coincident", 16, 2, 17, 1),
    Sketcher.Constraint("Coincident", 17, 2, 18, 1),
    Sketcher.Constraint("Coincident", 18, 2, 19, 1),
    Sketcher.Constraint("Coincident", 19, 2, 20, 1),
    Sketcher.Constraint("Coincident", 20, 2, 21, 1),
    Sketcher.Constraint("Coincident", 21, 2, 22, 1),
    Sketcher.Constraint("Coincident", 22, 2, 23, 1),
    Sketcher.Constraint("Coincident", 23, 2, 24, 1),
    Sketcher.Constraint("Coincident", 24, 2, 25, 1),
    Sketcher.Constraint("Coincident", 25, 2, 26, 1),
    Sketcher.Constraint("Coincident", 26, 2, 27, 1),
    Sketcher.Constraint("Coincident", 27, 2, 0, 1),
    Sketcher.Constraint("Coincident", 29, 2, 30, 1),
    Sketcher.Constraint("Coincident", 30, 2, 31, 1),
    Sketcher.Constraint("Coincident", 31, 2, 32, 1),
    Sketcher.Constraint("Coincident", 32, 2, 29, 1),
    Sketcher.Constraint("Coincident", 33, 2, 34, 1),
    Sketcher.Constraint("Coincident", 34, 2, 35, 1),
    Sketcher.Constraint("Coincident", 35, 2, 36, 1),
    Sketcher.Constraint("Coincident", 36, 2, 33, 1),
    Sketcher.Constraint("Coincident", 38, 2, 39, 1),
    Sketcher.Constraint("Coincident", 39, 2, 40, 1),
    Sketcher.Constraint("Coincident", 40, 2, 41, 1),
    Sketcher.Constraint("Coincident", 41, 2, 38, 1),
    Sketcher.Constraint("Coincident", 42, 2, 43, 1),
    Sketcher.Constraint("Coincident", 43, 2, 44, 1),
    Sketcher.Constraint("Coincident", 44, 2, 45, 1),
    Sketcher.Constraint("Coincident", 45, 2, 42, 1),
    Sketcher.Constraint("Horizontal", 0),
    Sketcher.Constraint("Vertical", 1),
    Sketcher.Constraint("Horizontal", 2),
    Sketcher.Constraint("Vertical", 3),
    Sketcher.Constraint("Horizontal", 4),
    Sketcher.Constraint("Vertical", 5),
    Sketcher.Constraint("Horizontal", 6),
    Sketcher.Constraint("Vertical", 7),
    Sketcher.Constraint("Horizontal", 8),
    Sketcher.Constraint("Vertical", 9),
    Sketcher.Constraint("Horizontal", 10),
    Sketcher.Constraint("Vertical", 11),
    Sketcher.Constraint("Horizontal", 12),
    Sketcher.Constraint("Vertical", 13),
    Sketcher.Constraint("Horizontal", 14),
    Sketcher.Constraint("Vertical", 15),
    Sketcher.Constraint("Horizontal", 16),
    Sketcher.Constraint("Vertical", 17),
    Sketcher.Constraint("Horizontal", 18),
    Sketcher.Constraint("Vertical", 19),
    Sketcher.Constraint("Horizontal", 20),
    Sketcher.Constraint("Vertical", 21),
    Sketcher.Constraint("Horizontal", 22),
    Sketcher.Constraint("Vertical", 23),
    Sketcher.Constraint("Horizontal", 24),
    Sketcher.Constraint("Vertical", 25),
    Sketcher.Constraint("Horizontal", 26),
    Sketcher.Constraint("Vertical", 27),
    Sketcher.Constraint("Horizontal", 29),
    Sketcher.Constraint("Vertical", 30),
    Sketcher.Constraint("Horizontal", 31),
    Sketcher.Constraint("Vertical", 32),
    Sketcher.Constraint("Horizontal", 33),
    Sketcher.Constraint("Vertical", 34),
    Sketcher.Constraint("Horizontal", 35),
    Sketcher.Constraint("Vertical", 36),
    Sketcher.Constraint("Horizontal", 38),
    Sketcher.Constraint("Vertical", 39),
    Sketcher.Constraint("Horizontal", 40),
    Sketcher.Constraint("Vertical", 41),
    Sketcher.Constraint("Horizontal", 42),
    Sketcher.Constraint("Vertical", 43),
    Sketcher.Constraint("Horizontal", 44),
    Sketcher.Constraint("Vertical", 45),
    Sketcher.Constraint("Equal", 28, 37),
    Sketcher.Constraint("Symmetric", 0, 2, 22, 2, -1, 1),
    Sketcher.Constraint("Symmetric", 9, 2, 23, 2, -1, 1),
    Sketcher.Constraint("Symmetric", 12, 2, 26, 2, -1, 1),
    Sketcher.Constraint("Symmetric", 12, 2, 23, 2, -2),
    Sketcher.Constraint("Symmetric", 28, 3, 37, 3, -1),
    Sketcher.Constraint("Symmetric", 7, 2, 14, 2, -1),
    Sketcher.Constraint("Symmetric", 5, 2, 16, 2, -1),
    Sketcher.Constraint("Symmetric", 3, 2, 18, 2, -1),
    Sketcher.Constraint("Symmetric", 1, 2, 20, 2, -1),
    Sketcher.Constraint("Symmetric", 34, 2, 38, 2, -1),
    Sketcher.Constraint("Symmetric", 36, 2, 40, 2, -1),
    Sketcher.Constraint("Symmetric", 30, 2, 42, 2, -1),
    Sketcher.Constraint("Symmetric", 32, 2, 44, 2, -1),
    Sketcher.Constraint("Horizontal", 8, 2, 29, 2),
    Sketcher.Constraint("Horizontal", 6, 2, 30, 2),
    Sketcher.Constraint("Horizontal", 4, 2, 33, 2),
    Sketcher.Constraint("Horizontal", 2, 2, 34, 2),
    Sketcher.Constraint("Vertical", 1, 2, 4, 2),
    Sketcher.Constraint("Vertical", 3, 2, 6, 2),
    Sketcher.Constraint("Vertical", 30, 2, 33, 2),
    Sketcher.Constraint("Vertical", 32, 2, 35, 2),
    Sketcher.Constraint("Equal", 3, 7),
    Sketcher.Constraint("Diameter", 28, 6.0),
    Sketcher.Constraint("DistanceX", 0, 1, 0, 2, 22.0),
    Sketcher.Constraint("DistanceX", 2, 1, 2, 2, 7.0),
    Sketcher.Constraint("DistanceX", 10, 1, 10, 2, 238.0),
    Sketcher.Constraint("DistanceX", 24, 2, 24, 1, 100.0),
    Sketcher.Constraint("DistanceX", 29, 2, 29, 1, 20.0),
    Sketcher.Constraint("DistanceY", 11, 1, 11, 2, 320.0),
    Sketcher.Constraint("DistanceY", 23, 1, 23, 2, 21.0),
    Sketcher.Constraint("DistanceY", 3, 2, 3, 1, 2.1),
    Sketcher.Constraint("DistanceY", 5, 2, 5, 1, 1.9),
    Sketcher.Constraint("DistanceX", -1, 1, 28, 3, 23.0),
    Sketcher.Constraint("DistanceY", 28, 3, -1, 1, 150.0),
    Sketcher.Constraint("DistanceY", 1, 2, 13, 2, 300.0),
    Sketcher.Constraint("DistanceX", -1, 1, 29, 2, 27.5),
])
pad6 = doc.addObject("PartDesign::Pad", "Pad005")
body2.addObject(pad6)
pad6.Profile = sketch6
pad6.Length = 5
pad6.Reversed = True

doc.recompute()
